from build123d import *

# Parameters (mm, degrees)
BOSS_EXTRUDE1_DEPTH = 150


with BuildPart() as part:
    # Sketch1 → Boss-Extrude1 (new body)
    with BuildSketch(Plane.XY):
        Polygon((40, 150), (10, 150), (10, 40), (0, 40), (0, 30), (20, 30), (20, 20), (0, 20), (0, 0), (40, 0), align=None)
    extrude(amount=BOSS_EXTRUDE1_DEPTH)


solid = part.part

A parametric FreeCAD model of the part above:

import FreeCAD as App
import Part
import Sketcher
Q = App.Units.Quantity


def add_polygon(sketch, points):
    """Adds a closed chain of lines whose ends are joined by coincident constraints."""
    first, n = sketch.GeometryCount, len(points)
    for a, b in zip(points, points[1:] + points[:1]):
        sketch.addGeometry(Part.LineSegment(App.Vector(*a, 0), App.Vector(*b, 0)), False)
    for i in range(n):
        sketch.addConstraint(Sketcher.Constraint("Coincident", first + i, 2, first + (i + 1) % n, 1))

doc = App.newDocument("Part")
body = doc.addObject("PartDesign::Body", "Body")

sketch1 = body.newObject("Sketcher::SketchObject", "Sketch")
sketch1.AttachmentSupport = (doc.getObject("XY_Plane"), [""])
sketch1.MapMode = "FlatFace"
add_polygon(sketch1, [(40, 150), (10, 150), (10, 40), (0, 40), (0, 30), (20, 30), (20, 20), (0, 20), (0, 0), (40, 0)])
sketch1.addConstraint([
    Sketcher.Constraint("Horizontal", 0),
    Sketcher.Constraint("Vertical", 1),
    Sketcher.Constraint("Horizontal", 2),
    Sketcher.Constraint("Vertical", 3),
    Sketcher.Constraint("Horizontal", 4),
    Sketcher.Constraint("Vertical", 5),
    Sketcher.Constraint("Horizontal", 6),
    Sketcher.Constraint("Vertical", 7),
    Sketcher.Constraint("Horizontal", 8),
    Sketcher.Constraint("Vertical", 9),
    Sketcher.Constraint("Coincident", 7, 2, -1, 1),
    Sketcher.Constraint("PointOnObject", 2, 2, -2),
    Sketcher.Constraint("Equal", 2, 3),
    Sketcher.Constraint("Equal", 3, 5),
    Sketcher.Constraint("Equal", 6, 7),
    Sketcher.Constraint("DistanceX", 0, 2, 0, 1, Q("30 mm")),
    Sketcher.Constraint("DistanceX", 2, 2, 2, 1, Q("10 mm")),
    Sketcher.Constraint("DistanceX", 4, 1, 4, 2, Q("20 mm")),
    Sketcher.Constraint("DistanceY", 1, 2, 1, 1, Q("110 mm")),
])
pad1 = body.newObject("PartDesign::Pad", "Pad")
pad1.Profile = sketch1
pad1.Length = 150

doc.recompute()
